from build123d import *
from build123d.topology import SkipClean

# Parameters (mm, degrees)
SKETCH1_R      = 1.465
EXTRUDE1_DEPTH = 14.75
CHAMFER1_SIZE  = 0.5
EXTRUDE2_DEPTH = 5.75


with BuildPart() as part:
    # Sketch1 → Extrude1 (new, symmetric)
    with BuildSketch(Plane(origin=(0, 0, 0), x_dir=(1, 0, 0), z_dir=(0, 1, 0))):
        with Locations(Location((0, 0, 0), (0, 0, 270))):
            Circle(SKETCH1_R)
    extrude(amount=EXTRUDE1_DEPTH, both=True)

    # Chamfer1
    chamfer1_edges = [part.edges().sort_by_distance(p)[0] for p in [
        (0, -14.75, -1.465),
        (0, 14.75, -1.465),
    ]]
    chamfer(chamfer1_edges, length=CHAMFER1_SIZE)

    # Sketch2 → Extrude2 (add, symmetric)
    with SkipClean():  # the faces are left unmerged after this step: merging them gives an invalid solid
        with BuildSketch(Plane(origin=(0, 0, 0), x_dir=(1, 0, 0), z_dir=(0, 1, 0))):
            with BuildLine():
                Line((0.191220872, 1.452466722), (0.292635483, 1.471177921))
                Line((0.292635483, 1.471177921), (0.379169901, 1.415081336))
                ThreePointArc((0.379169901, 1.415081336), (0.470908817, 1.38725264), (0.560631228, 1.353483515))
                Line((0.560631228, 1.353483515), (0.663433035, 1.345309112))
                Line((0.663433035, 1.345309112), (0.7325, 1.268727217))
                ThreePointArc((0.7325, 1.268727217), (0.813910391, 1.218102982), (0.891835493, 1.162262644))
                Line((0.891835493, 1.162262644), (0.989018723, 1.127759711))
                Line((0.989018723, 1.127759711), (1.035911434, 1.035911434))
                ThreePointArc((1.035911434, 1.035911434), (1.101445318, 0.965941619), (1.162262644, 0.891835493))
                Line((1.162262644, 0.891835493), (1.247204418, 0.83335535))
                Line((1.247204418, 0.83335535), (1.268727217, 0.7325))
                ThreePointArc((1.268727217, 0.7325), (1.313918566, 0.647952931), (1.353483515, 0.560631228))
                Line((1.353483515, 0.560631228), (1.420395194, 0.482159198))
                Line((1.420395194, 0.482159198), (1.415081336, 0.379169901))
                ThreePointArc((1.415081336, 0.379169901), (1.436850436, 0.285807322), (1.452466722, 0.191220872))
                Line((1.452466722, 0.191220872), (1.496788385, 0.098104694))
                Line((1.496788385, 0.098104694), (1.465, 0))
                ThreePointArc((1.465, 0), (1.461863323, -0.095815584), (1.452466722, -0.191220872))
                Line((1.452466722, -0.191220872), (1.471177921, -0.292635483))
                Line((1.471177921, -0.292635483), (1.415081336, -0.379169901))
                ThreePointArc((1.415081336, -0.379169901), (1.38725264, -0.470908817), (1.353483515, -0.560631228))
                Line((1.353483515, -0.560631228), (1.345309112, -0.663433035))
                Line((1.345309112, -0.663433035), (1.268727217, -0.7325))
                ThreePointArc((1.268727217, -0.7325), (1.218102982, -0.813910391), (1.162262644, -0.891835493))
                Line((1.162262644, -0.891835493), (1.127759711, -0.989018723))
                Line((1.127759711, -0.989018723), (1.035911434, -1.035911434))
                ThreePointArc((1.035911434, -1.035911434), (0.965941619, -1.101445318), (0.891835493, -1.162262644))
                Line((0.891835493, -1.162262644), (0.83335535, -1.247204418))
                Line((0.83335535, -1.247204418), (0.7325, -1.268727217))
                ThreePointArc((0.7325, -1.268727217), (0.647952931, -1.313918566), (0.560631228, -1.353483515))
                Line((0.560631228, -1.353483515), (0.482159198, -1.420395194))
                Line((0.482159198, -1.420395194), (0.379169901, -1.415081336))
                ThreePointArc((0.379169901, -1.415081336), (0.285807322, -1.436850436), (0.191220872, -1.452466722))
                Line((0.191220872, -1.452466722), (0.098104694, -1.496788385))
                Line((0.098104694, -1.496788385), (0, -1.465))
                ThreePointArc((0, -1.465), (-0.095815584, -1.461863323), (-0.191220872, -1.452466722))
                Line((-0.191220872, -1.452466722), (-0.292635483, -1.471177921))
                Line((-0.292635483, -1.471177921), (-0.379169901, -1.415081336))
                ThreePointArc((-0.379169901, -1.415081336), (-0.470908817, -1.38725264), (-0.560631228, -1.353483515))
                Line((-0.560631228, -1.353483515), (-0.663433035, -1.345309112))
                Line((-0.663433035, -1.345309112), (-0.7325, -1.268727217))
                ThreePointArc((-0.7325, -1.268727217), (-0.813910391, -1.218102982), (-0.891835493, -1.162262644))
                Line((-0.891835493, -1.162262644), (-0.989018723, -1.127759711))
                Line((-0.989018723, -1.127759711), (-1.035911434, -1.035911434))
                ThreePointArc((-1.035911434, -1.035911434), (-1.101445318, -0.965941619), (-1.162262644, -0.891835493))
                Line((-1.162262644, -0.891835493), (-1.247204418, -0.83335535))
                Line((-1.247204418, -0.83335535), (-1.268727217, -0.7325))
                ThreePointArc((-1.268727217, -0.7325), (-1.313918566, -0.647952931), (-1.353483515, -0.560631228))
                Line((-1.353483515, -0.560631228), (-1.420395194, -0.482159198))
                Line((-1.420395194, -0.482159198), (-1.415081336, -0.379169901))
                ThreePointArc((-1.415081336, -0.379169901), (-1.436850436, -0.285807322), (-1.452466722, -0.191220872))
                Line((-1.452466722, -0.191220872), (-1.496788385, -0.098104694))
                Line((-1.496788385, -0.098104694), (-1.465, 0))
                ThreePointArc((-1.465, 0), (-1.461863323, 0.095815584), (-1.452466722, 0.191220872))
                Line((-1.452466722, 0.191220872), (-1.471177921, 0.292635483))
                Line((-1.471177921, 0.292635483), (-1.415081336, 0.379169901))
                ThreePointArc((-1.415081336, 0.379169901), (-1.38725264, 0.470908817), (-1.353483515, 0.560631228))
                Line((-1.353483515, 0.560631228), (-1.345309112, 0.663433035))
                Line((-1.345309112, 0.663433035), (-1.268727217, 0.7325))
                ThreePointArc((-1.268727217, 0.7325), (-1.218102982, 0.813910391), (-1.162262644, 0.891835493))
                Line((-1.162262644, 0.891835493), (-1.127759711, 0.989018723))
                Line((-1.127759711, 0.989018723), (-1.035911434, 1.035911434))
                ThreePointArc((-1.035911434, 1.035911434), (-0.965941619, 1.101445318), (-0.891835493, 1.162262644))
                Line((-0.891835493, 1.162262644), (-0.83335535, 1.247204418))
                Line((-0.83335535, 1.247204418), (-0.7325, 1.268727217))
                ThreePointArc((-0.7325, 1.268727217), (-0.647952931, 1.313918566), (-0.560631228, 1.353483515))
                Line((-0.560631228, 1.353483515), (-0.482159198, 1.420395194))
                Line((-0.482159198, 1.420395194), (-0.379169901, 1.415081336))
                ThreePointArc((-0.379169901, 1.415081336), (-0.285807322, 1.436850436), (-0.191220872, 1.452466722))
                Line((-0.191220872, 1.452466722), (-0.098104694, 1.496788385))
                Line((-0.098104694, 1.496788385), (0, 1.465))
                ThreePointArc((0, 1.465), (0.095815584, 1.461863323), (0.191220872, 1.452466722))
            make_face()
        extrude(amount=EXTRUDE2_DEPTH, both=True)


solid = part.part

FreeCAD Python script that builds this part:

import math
import FreeCAD as App
import Part
import Sketcher

V = App.Vector


def edges_at(feature, points):
    """Names of the edges that pass closest to the given points."""
    edges = feature.Shape.Edges
    near = lambda p: min(range(len(edges)), key=lambda i: edges[i].distToShape(Part.Vertex(*p))[0])
    return sorted({f"Edge{near(p) + 1}" for p in points})

doc = App.newDocument("Part")
body = doc.addObject("PartDesign::Body", "Body")

sketch1 = doc.addObject("Sketcher::SketchObject", "Sketch")
body.addObject(sketch1)
sketch1.AttachmentSupport = (doc.XZ_Plane, [""])
sketch1.MapMode = "FlatFace"
sketch1.addGeometry(Part.Circle(V(0, 0, 0), V(0, 0, 1), 1.5), False)
sketch1.addConstraint(Sketcher.Constraint("Coincident", 0, 3, -1, 1))
sketch1.addConstraint(Sketcher.Constraint("Diameter", 0, 2.93))
pad1 = doc.addObject("PartDesign::Pad", "Pad")
body.addObject(pad1)
pad1.Profile = sketch1
pad1.Length = 29.5
pad1.Midplane = True
doc.recompute()

chamfer = doc.addObject("PartDesign::Chamfer", "Chamfer")
body.addObject(chamfer)
chamfer.Base = (pad1, edges_at(pad1, [(0, -14.75, -1.465), (0, 14.75, -1.465)]))
chamfer.Size = 0.5

sketch2 = doc.addObject("Sketcher::SketchObject", "Sketch001")
body.addObject(sketch2)
sketch2.AttachmentSupport = (doc.XZ_Plane, [""])
sketch2.MapMode = "FlatFace"
sketch2.addGeometry(Part.LineSegment(V(0.29, -1.47, 0), V(0.19, -1.45, 0)), False)
sketch2.addGeometry(Part.ArcOfCircle(Part.Circle(V(0, 0, 0), V(0, 0, 1), 1.46), math.radians(-90), math.radians(-82.5)), False)
sketch2.addGeometry(Part.LineSegment(V(0, -1.47, 0), V(-0.1, -1.5, 0)), False)
sketch2.addGeometry(Part.LineSegment(V(-0.1, -1.5, 0), V(-0.19, -1.45, 0)), False)
sketch2.addGeometry(Part.ArcOfCircle(Part.Circle(V(0, 0, 0), V(0, 0, 1), 1.47), math.radians(-105), math.radians(-97.5)), False)
sketch2.addGeometry(Part.LineSegment(V(-0.38, -1.42, 0), V(-0.48, -1.42, 0)), False)
sketch2.addGeometry(Part.LineSegment(V(-0.48, -1.42, 0), V(-0.56, -1.35, 0)), False)
sketch2.addGeometry(Part.ArcOfCircle(Part.Circle(V(0, 0, 0), V(0, 0, 1), 1.47), math.radians(-120), math.radians(-112.5)), False)
sketch2.addGeometry(Part.LineSegment(V(-0.73, -1.27, 0), V(-0.83, -1.25, 0)), False)
sketch2.addGeometry(Part.LineSegment(V(-0.83, -1.25, 0), V(-0.89, -1.16, 0)), False)
sketch2.addGeometry(Part.ArcOfCircle(Part.Circle(V(0, 0, 0), V(0, 0, 1), 1.46), math.radians(-135), math.radians(-127.5)), False)
sketch2.addGeometry(Part.LineSegment(V(-1.04, -1.04, 0), V(-1.13, -0.99, 0)), False)
sketch2.addGeometry(Part.LineSegment(V(-1.13, -0.99, 0), V(-1.16, -0.89, 0)), False)
sketch2.addGeometry(Part.ArcOfCircle(Part.Circle(V(0, 0, 0), V(0, 0, 1), 1.47), math.radians(-150), math.radians(-142.5)), False)
sketch2.addGeometry(Part.LineSegment(V(-1.27, -0.73, 0), V(-1.35, -0.66, 0)), False)
sketch2.addGeometry(Part.LineSegment(V(-1.35, -0.66, 0), V(-1.35, -0.56, 0)), False)
sketch2.addGeometry(Part.ArcOfCircle(Part.Circle(V(0, 0, 0), V(0, 0, 1), 1.46), math.radians(-165), math.radians(-157.5)), False)
sketch2.addGeometry(Part.LineSegment(V(-1.42, -0.38, 0), V(-1.47, -0.29, 0)), False)
sketch2.addGeometry(Part.LineSegment(V(-1.47, -0.29, 0), V(-1.45, -0.19, 0)), False)
sketch2.addGeometry(Part.ArcOfCircle(Part.Circle(V(0, 0, 0), V(0, 0, 1), 1.46), math.radians(180), math.radians(187.5)), False)
sketch2.addGeometry(Part.LineSegment(V(-1.47, 0, 0), V(-1.5, 0.1, 0)), False)
sketch2.addGeometry(Part.LineSegment(V(-1.5, 0.1, 0), V(-1.45, 0.19, 0)), False)
sketch2.addGeometry(Part.ArcOfCircle(Part.Circle(V(0, 0, 0), V(0, 0, 1), 1.47), math.radians(165), math.radians(172.5)), False)
sketch2.addGeometry(Part.LineSegment(V(-1.42, 0.38, 0), V(-1.42, 0.48, 0)), False)
sketch2.addGeometry(Part.LineSegment(V(-1.42, 0.48, 0), V(-1.35, 0.56, 0)), False)
sketch2.addGeometry(Part.ArcOfCircle(Part.Circle(V(0, 0, 0), V(0, 0, 1), 1.47), math.radians(150), math.radians(157.5)), False)
sketch2.addGeometry(Part.LineSegment(V(-1.27, 0.73, 0), V(-1.25, 0.83, 0)), False)
sketch2.addGeometry(Part.LineSegment(V(-1.25, 0.83, 0), V(-1.16, 0.89, 0)), False)
sketch2.addGeometry(Part.ArcOfCircle(Part.Circle(V(0, 0, 0), V(0, 0, 1), 1.46), math.radians(135), math.radians(142.5)), False)
sketch2.addGeometry(Part.LineSegment(V(-1.04, 1.04, 0), V(-0.99, 1.13, 0)), False)
sketch2.addGeometry(Part.LineSegment(V(-0.99, 1.13, 0), V(-0.89, 1.16, 0)), False)
sketch2.addGeometry(Part.ArcOfCircle(Part.Circle(V(0, 0, 0), V(0, 0, 1), 1.47), math.radians(120), math.radians(127.5)), False)
sketch2.addGeometry(Part.LineSegment(V(-0.73, 1.27, 0), V(-0.66, 1.35, 0)), False)
sketch2.addGeometry(Part.LineSegment(V(-0.66, 1.35, 0), V(-0.56, 1.35, 0)), False)
sketch2.addGeometry(Part.ArcOfCircle(Part.Circle(V(0, 0, 0), V(0, 0, 1), 1.46), math.radians(105), math.radians(112.5)), False)
sketch2.addGeometry(Part.LineSegment(V(-0.38, 1.42, 0), V(-0.29, 1.47, 0)), False)
sketch2.addGeometry(Part.LineSegment(V(-0.29, 1.47, 0), V(-0.19, 1.45, 0)), False)
sketch2.addGeometry(Part.ArcOfCircle(Part.Circle(V(0, 0, 0), V(0, 0, 1), 1.46), math.radians(90), math.radians(97.5)), False)
sketch2.addGeometry(Part.LineSegment(V(0, 1.47, 0), V(0.1, 1.5, 0)), False)
sketch2.addGeometry(Part.LineSegment(V(0.1, 1.5, 0), V(0.19, 1.45, 0)), False)
sketch2.addGeometry(Part.ArcOfCircle(Part.Circle(V(0, 0, 0), V(0, 0, 1), 1.47), math.radians(75), math.radians(82.5)), False)
sketch2.addGeometry(Part.LineSegment(V(0.38, 1.42, 0), V(0.48, 1.42, 0)), False)
sketch2.addGeometry(Part.LineSegment(V(0.48, 1.42, 0), V(0.56, 1.35, 0)), False)
sketch2.addGeometry(Part.ArcOfCircle(Part.Circle(V(0, 0, 0), V(0, 0, 1), 1.47), math.radians(60), math.radians(67.5)), False)
sketch2.addGeometry(Part.LineSegment(V(0.73, 1.27, 0), V(0.83, 1.25, 0)), False)
sketch2.addGeometry(Part.LineSegment(V(0.83, 1.25, 0), V(0.89, 1.16, 0)), False)
sketch2.addGeometry(Part.ArcOfCircle(Part.Circle(V(0, 0, 0), V(0, 0, 1), 1.46), math.radians(45), math.radians(52.5)), False)
sketch2.addGeometry(Part.LineSegment(V(1.04, 1.04, 0), V(1.13, 0.99, 0)), False)
sketch2.addGeometry(Part.LineSegment(V(1.13, 0.99, 0), V(1.16, 0.89, 0)), False)
sketch2.addGeometry(Part.ArcOfCircle(Part.Circle(V(0, 0, 0), V(0, 0, 1), 1.47), math.radians(30), math.radians(37.5)), False)
sketch2.addGeometry(Part.LineSegment(V(1.27, 0.73, 0), V(1.35, 0.66, 0)), False)
sketch2.addGeometry(Part.LineSegment(V(1.35, 0.66, 0), V(1.35, 0.56, 0)), False)
sketch2.addGeometry(Part.ArcOfCircle(Part.Circle(V(0, 0, 0), V(0, 0, 1), 1.46), math.radians(15), math.radians(22.5)), False)
sketch2.addGeometry(Part.LineSegment(V(1.42, 0.38, 0), V(1.47, 0.29, 0)), False)
sketch2.addGeometry(Part.LineSegment(V(1.47, 0.29, 0), V(1.45, 0.19, 0)), False)
sketch2.addGeometry(Part.ArcOfCircle(Part.Circle(V(0, 0, 0), V(0, 0, 1), 1.46), math.radians(0), math.radians(7.5)), False)
sketch2.addGeometry(Part.LineSegment(V(1.47, 0, 0), V(1.5, -0.1, 0)), False)
sketch2.addGeometry(Part.LineSegment(V(1.5, -0.1, 0), V(1.45, -0.19, 0)), False)
sketch2.addGeometry(Part.ArcOfCircle(Part.Circle(V(0, 0, 0), V(0, 0, 1), 1.47), math.radians(-15), math.radians(-7.5)), False)
sketch2.addGeometry(Part.LineSegment(V(1.42, -0.38, 0), V(1.42, -0.48, 0)), False)
sketch2.addGeometry(Part.LineSegment(V(1.42, -0.48, 0), V(1.35, -0.56, 0)), False)
sketch2.addGeometry(Part.ArcOfCircle(Part.Circle(V(0, 0, 0), V(0, 0, 1), 1.47), math.radians(-30), math.radians(-22.5)), False)
sketch2.addGeometry(Part.LineSegment(V(1.27, -0.73, 0), V(1.25, -0.83, 0)), False)
sketch2.addGeometry(Part.LineSegment(V(1.25, -0.83, 0), V(1.16, -0.89, 0)), False)
sketch2.addGeometry(Part.ArcOfCircle(Part.Circle(V(0, 0, 0), V(0, 0, 1), 1.46), math.radians(-45), math.radians(-37.5)), False)
sketch2.addGeometry(Part.LineSegment(V(1.04, -1.04, 0), V(0.99, -1.13, 0)), False)
sketch2.addGeometry(Part.LineSegment(V(0.99, -1.13, 0), V(0.89, -1.16, 0)), False)
sketch2.addGeometry(Part.ArcOfCircle(Part.Circle(V(0, 0, 0), V(0, 0, 1), 1.47), math.radians(-60), math.radians(-52.5)), False)
sketch2.addGeometry(Part.LineSegment(V(0.73, -1.27, 0), V(0.66, -1.35, 0)), False)
sketch2.addGeometry(Part.LineSegment(V(0.66, -1.35, 0), V(0.56, -1.35, 0)), False)
sketch2.addGeometry(Part.ArcOfCircle(Part.Circle(V(0, 0, 0), V(0, 0, 1), 1.46), math.radians(-75), math.radians(-67.5)), False)
sketch2.addGeometry(Part.LineSegment(V(0.38, -1.42, 0), V(0.29, -1.47, 0)), False)
sketch2.addConstraint(Sketcher.Constraint("Coincident", 0, 2, 1, 2))
sketch2.addConstraint(Sketcher.Constraint("Coincident", 1, 1, 2, 1))
sketch2.addConstraint(Sketcher.Constraint("Coincident", 2, 2, 3, 1))
sketch2.addConstraint(Sketcher.Constraint("Coincident", 3, 2, 4, 2))
sketch2.addConstraint(Sketcher.Constraint("Coincident", 4, 1, 5, 1))
sketch2.addConstraint(Sketcher.Constraint("Coincident", 5, 2, 6, 1))
sketch2.addConstraint(Sketcher.Constraint("Coincident", 6, 2, 7, 2))
sketch2.addConstraint(Sketcher.Constraint("Coincident", 7, 1, 8, 1))
sketch2.addConstraint(Sketcher.Constraint("Coincident", 8, 2, 9, 1))
sketch2.addConstraint(Sketcher.Constraint("Coincident", 9, 2, 10, 2))
sketch2.addConstraint(Sketcher.Constraint("Coincident", 10, 1, 11, 1))
sketch2.addConstraint(Sketcher.Constraint("Coincident", 11, 2, 12, 1))
sketch2.addConstraint(Sketcher.Constraint("Coincident", 12, 2, 13, 2))
sketch2.addConstraint(Sketcher.Constraint("Coincident", 13, 1, 14, 1))
sketch2.addConstraint(Sketcher.Constraint("Coincident", 14, 2, 15, 1))
sketch2.addConstraint(Sketcher.Constraint("Coincident", 15, 2, 16, 2))
sketch2.addConstraint(Sketcher.Constraint("Coincident", 16, 1, 17, 1))
sketch2.addConstraint(Sketcher.Constraint("Coincident", 17, 2, 18, 1))
sketch2.addConstraint(Sketcher.Constraint("Coincident", 18, 2, 19, 2))
sketch2.addConstraint(Sketcher.Constraint("Coincident", 19, 1, 20, 1))
sketch2.addConstraint(Sketcher.Constraint("Coincident", 20, 2, 21, 1))
sketch2.addConstraint(Sketcher.Constraint("Coincident", 21, 2, 22, 2))
sketch2.addConstraint(Sketcher.Constraint("Coincident", 22, 1, 23, 1))
sketch2.addConstraint(Sketcher.Constraint("Coincident", 23, 2, 24, 1))
sketch2.addConstraint(Sketcher.Constraint("Coincident", 24, 2, 25, 2))
sketch2.addConstraint(Sketcher.Constraint("Coincident", 25, 1, 26, 1))
sketch2.addConstraint(Sketcher.Constraint("Coincident", 26, 2, 27, 1))
sketch2.addConstraint(Sketcher.Constraint("Coincident", 27, 2, 28, 2))
sketch2.addConstraint(Sketcher.Constraint("Coincident", 28, 1, 29, 1))
sketch2.addConstraint(Sketcher.Constraint("Coincident", 29, 2, 30, 1))
sketch2.addConstraint(Sketcher.Constraint("Coincident", 30, 2, 31, 2))
sketch2.addConstraint(Sketcher.Constraint("Coincident", 31, 1, 32, 1))
sketch2.addConstraint(Sketcher.Constraint("Coincident", 32, 2, 33, 1))
sketch2.addConstraint(Sketcher.Constraint("Coincident", 33, 2, 34, 2))
sketch2.addConstraint(Sketcher.Constraint("Coincident", 34, 1, 35, 1))
sketch2.addConstraint(Sketcher.Constraint("Coincident", 35, 2, 36, 1))
sketch2.addConstraint(Sketcher.Constraint("Coincident", 36, 2, 37, 2))
sketch2.addConstraint(Sketcher.Constraint("Coincident", 37, 1, 38, 1))
sketch2.addConstraint(Sketcher.Constraint("Coincident", 38, 2, 39, 1))
sketch2.addConstraint(Sketcher.Constraint("Coincident", 39, 2, 40, 2))
sketch2.addConstraint(Sketcher.Constraint("Coincident", 40, 1, 41, 1))
sketch2.addConstraint(Sketcher.Constraint("Coincident", 41, 2, 42, 1))
sketch2.addConstraint(Sketcher.Constraint("Coincident", 42, 2, 43, 2))
sketch2.addConstraint(Sketcher.Constraint("Coincident", 43, 1, 44, 1))
sketch2.addConstraint(Sketcher.Constraint("Coincident", 44, 2, 45, 1))
sketch2.addConstraint(Sketcher.Constraint("Coincident", 45, 2, 46, 2))
sketch2.addConstraint(Sketcher.Constraint("Coincident", 46, 1, 47, 1))
sketch2.addConstraint(Sketcher.Constraint("Coincident", 47, 2, 48, 1))
sketch2.addConstraint(Sketcher.Constraint("Coincident", 48, 2, 49, 2))
sketch2.addConstraint(Sketcher.Constraint("Coincident", 49, 1, 50, 1))
sketch2.addConstraint(Sketcher.Constraint("Coincident", 50, 2, 51, 1))
sketch2.addConstraint(Sketcher.Constraint("Coincident", 51, 2, 52, 2))
sketch2.addConstraint(Sketcher.Constraint("Coincident", 52, 1, 53, 1))
sketch2.addConstraint(Sketcher.Constraint("Coincident", 53, 2, 54, 1))
sketch2.addConstraint(Sketcher.Constraint("Coincident", 54, 2, 55, 2))
sketch2.addConstraint(Sketcher.Constraint("Coincident", 55, 1, 56, 1))
sketch2.addConstraint(Sketcher.Constraint("Coincident", 56, 2, 57, 1))
sketch2.addConstraint(Sketcher.Constraint("Coincident", 57, 2, 58, 2))
sketch2.addConstraint(Sketcher.Constraint("Coincident", 58, 1, 59, 1))
sketch2.addConstraint(Sketcher.Constraint("Coincident", 59, 2, 60, 1))
sketch2.addConstraint(Sketcher.Constraint("Coincident", 60, 2, 61, 2))
sketch2.addConstraint(Sketcher.Constraint("Coincident", 61, 1, 62, 1))
sketch2.addConstraint(Sketcher.Constraint("Coincident", 62, 2, 63, 1))
sketch2.addConstraint(Sketcher.Constraint("Coincident", 63, 2, 64, 2))
sketch2.addConstraint(Sketcher.Constraint("Coincident", 64, 1, 65, 1))
sketch2.addConstraint(Sketcher.Constraint("Coincident", 65, 2, 66, 1))
sketch2.addConstraint(Sketcher.Constraint("Coincident", 66, 2, 67, 2))
sketch2.addConstraint(Sketcher.Constraint("Coincident", 67, 1, 68, 1))
sketch2.addConstraint(Sketcher.Constraint("Coincident", 68, 2, 69, 1))
sketch2.addConstraint(Sketcher.Constraint("Coincident", 69, 2, 70, 2))
sketch2.addConstraint(Sketcher.Constraint("Coincident", 70, 1, 71, 1))
sketch2.addConstraint(Sketcher.Constraint("Coincident", 71, 2, 0, 1))
sketch2.addConstraint(Sketcher.Constraint("Coincident", 1, 3, -1, 1))
sketch2.addConstraint(Sketcher.Constraint("Coincident", 4, 3, -1, 1))
sketch2.addConstraint(Sketcher.Constraint("Coincident", 7, 3, -1, 1))
sketch2.addConstraint(Sketcher.Constraint("Coincident", 10, 3, -1, 1))
sketch2.addConstraint(Sketcher.Constraint("Coincident", 13, 3, -1, 1))
sketch2.addConstraint(Sketcher.Constraint("Coincident", 16, 3, -1, 1))
sketch2.addConstraint(Sketcher.Constraint("Coincident", 19, 3, -1, 1))
sketch2.addConstraint(Sketcher.Constraint("Coincident", 22, 3, -1, 1))
sketch2.addConstraint(Sketcher.Constraint("Coincident", 25, 3, -1, 1))
sketch2.addConstraint(Sketcher.Constraint("Coincident", 28, 3, -1, 1))
sketch2.addConstraint(Sketcher.Constraint("Coincident", 31, 3, -1, 1))
sketch2.addConstraint(Sketcher.Constraint("Coincident", 34, 3, -1, 1))
sketch2.addConstraint(Sketcher.Constraint("Coincident", 37, 3, -1, 1))
sketch2.addConstraint(Sketcher.Constraint("Coincident", 40, 3, -1, 1))
sketch2.addConstraint(Sketcher.Constraint("Coincident", 43, 3, -1, 1))
sketch2.addConstraint(Sketcher.Constraint("Coincident", 46, 3, -1, 1))
sketch2.addConstraint(Sketcher.Constraint("Coincident", 49, 3, -1, 1))
sketch2.addConstraint(Sketcher.Constraint("Coincident", 52, 3, -1, 1))
sketch2.addConstraint(Sketcher.Constraint("Coincident", 55, 3, -1, 1))
sketch2.addConstraint(Sketcher.Constraint("Coincident", 58, 3, -1, 1))
sketch2.addConstraint(Sketcher.Constraint("Coincident", 61, 3, -1, 1))
sketch2.addConstraint(Sketcher.Constraint("Coincident", 64, 3, -1, 1))
sketch2.addConstraint(Sketcher.Constraint("Coincident", 67, 3, -1, 1))
sketch2.addConstraint(Sketcher.Constraint("Coincident", 70, 3, -1, 1))
sketch2.addConstraint(Sketcher.Constraint("Equal", 1, 4))
sketch2.addConstraint(Sketcher.Constraint("Equal", 4, 7))
sketch2.addConstraint(Sketcher.Constraint("Equal", 7, 10))
sketch2.addConstraint(Sketcher.Constraint("Equal", 10, 13))
sketch2.addConstraint(Sketcher.Constraint("Equal", 13, 16))
sketch2.addConstraint(Sketcher.Constraint("Equal", 16, 19))
sketch2.addConstraint(Sketcher.Constraint("Equal", 19, 22))
sketch2.addConstraint(Sketcher.Constraint("Equal", 22, 25))
sketch2.addConstraint(Sketcher.Constraint("Equal", 25, 28))
sketch2.addConstraint(Sketcher.Constraint("Equal", 28, 31))
sketch2.addConstraint(Sketcher.Constraint("Equal", 31, 34))
sketch2.addConstraint(Sketcher.Constraint("Equal", 34, 37))
sketch2.addConstraint(Sketcher.Constraint("Equal", 37, 40))
sketch2.addConstraint(Sketcher.Constraint("Equal", 40, 43))
sketch2.addConstraint(Sketcher.Constraint("Equal", 43, 46))
sketch2.addConstraint(Sketcher.Constraint("Equal", 46, 49))
sketch2.addConstraint(Sketcher.Constraint("Equal", 49, 52))
sketch2.addConstraint(Sketcher.Constraint("Equal", 52, 55))
sketch2.addConstraint(Sketcher.Constraint("Equal", 55, 58))
sketch2.addConstraint(Sketcher.Constraint("Equal", 58, 61))
sketch2.addConstraint(Sketcher.Constraint("Equal", 61, 64))
sketch2.addConstraint(Sketcher.Constraint("Equal", 64, 67))
sketch2.addConstraint(Sketcher.Constraint("Equal", 67, 70))
sketch2.addConstraint(Sketcher.Constraint("Symmetric", 2, 2, 38, 2, -1, 1))
sketch2.addConstraint(Sketcher.Constraint("Symmetric", 5, 2, 41, 2, -1, 1))
sketch2.addConstraint(Sketcher.Constraint("Symmetric", 8, 2, 44, 2, -1, 1))
sketch2.addConstraint(Sketcher.Constraint("Symmetric", 11, 2, 47, 2, -1, 1))
sketch2.addConstraint(Sketcher.Constraint("Symmetric", 14, 2, 50, 2, -1, 1))
sketch2.addConstraint(Sketcher.Constraint("Symmetric", 17, 2, 53, 2, -1, 1))
sketch2.addConstraint(Sketcher.Constraint("Symmetric", 20, 2, 56, 2, -1, 1))
sketch2.addConstraint(Sketcher.Constraint("Symmetric", 23, 2, 59, 2, -1, 1))
sketch2.addConstraint(Sketcher.Constraint("Symmetric", 26, 2, 62, 2, -1, 1))
sketch2.addConstraint(Sketcher.Constraint("Symmetric", 29, 2, 65, 2, -1, 1))
sketch2.addConstraint(Sketcher.Constraint("Symmetric", 32, 2, 68, 2, -1, 1))
sketch2.addConstraint(Sketcher.Constraint("Symmetric", 35, 2, 71, 2, -1, 1))
sketch2.addConstraint(Sketcher.Constraint("PointOnObject", 1, 1, -2))
sketch2.addConstraint(Sketcher.Constraint("PointOnObject", 19, 1, -1))
sketch2.addConstraint(Sketcher.Constraint("PointOnObject", 37, 1, -2))
sketch2.addConstraint(Sketcher.Constraint("PointOnObject", 55, 1, -1))
sketch2.addConstraint(Sketcher.Constraint("Perpendicular", 0, 18))
sketch2.addConstraint(Sketcher.Constraint("Perpendicular", 2, 20))
sketch2.addConstraint(Sketcher.Constraint("Perpendicular", 3, 21))
sketch2.addConstraint(Sketcher.Constraint("Perpendicular", 5, 23))
sketch2.addConstraint(Sketcher.Constraint("Perpendicular", 6, 24))
sketch2.addConstraint(Sketcher.Constraint("Perpendicular", 8, 26))
sketch2.addConstraint(Sketcher.Constraint("Perpendicular", 9, 27))
sketch2.addConstraint(Sketcher.Constraint("Perpendicular", 11, 29))
sketch2.addConstraint(Sketcher.Constraint("Perpendicular", 12, 30))
sketch2.addConstraint(Sketcher.Constraint("Perpendicular", 14, 32))
sketch2.addConstraint(Sketcher.Constraint("Perpendicular", 15, 33))
sketch2.addConstraint(Sketcher.Constraint("Perpendicular", 17, 35))
sketch2.addConstraint(Sketcher.Constraint("Perpendicular", 18, 36))
sketch2.addConstraint(Sketcher.Constraint("Perpendicular", 21, 39))
sketch2.addConstraint(Sketcher.Constraint("Perpendicular", 23, 41))
sketch2.addConstraint(Sketcher.Constraint("Perpendicular", 24, 42))
sketch2.addConstraint(Sketcher.Constraint("Perpendicular", 26, 44))
sketch2.addConstraint(Sketcher.Constraint("Perpendicular", 27, 45))
sketch2.addConstraint(Sketcher.Constraint("Perpendicular", 29, 47))
sketch2.addConstraint(Sketcher.Constraint("Perpendicular", 30, 48))
sketch2.addConstraint(Sketcher.Constraint("Perpendicular", 32, 50))
sketch2.addConstraint(Sketcher.Constraint("Perpendicular", 33, 51))
sketch2.addConstraint(Sketcher.Constraint("Perpendicular", 35, 53))
sketch2.addConstraint(Sketcher.Constraint("Perpendicular", 36, 54))
sketch2.addConstraint(Sketcher.Constraint("Perpendicular", 39, 57))
sketch2.addConstraint(Sketcher.Constraint("Perpendicular", 41, 59))
sketch2.addConstraint(Sketcher.Constraint("Perpendicular", 42, 60))
sketch2.addConstraint(Sketcher.Constraint("Perpendicular", 44, 62))
sketch2.addConstraint(Sketcher.Constraint("Perpendicular", 45, 63))
sketch2.addConstraint(Sketcher.Constraint("Perpendicular", 47, 65))
sketch2.addConstraint(Sketcher.Constraint("Perpendicular", 48, 66))
sketch2.addConstraint(Sketcher.Constraint("Perpendicular", 50, 68))
sketch2.addConstraint(Sketcher.Constraint("Perpendicular", 51, 69))
sketch2.addConstraint(Sketcher.Constraint("Perpendicular", 53, 71))
sketch2.addConstraint(Sketcher.Constraint("Horizontal", 0, 2, 3, 2))
sketch2.addConstraint(Sketcher.Constraint("Horizontal", 34, 1, 40, 1))
sketch2.addConstraint(Sketcher.Constraint("Horizontal", 33, 2, 42, 2))
sketch2.addConstraint(Sketcher.Constraint("Horizontal", 31, 1, 43, 1))
sketch2.addConstraint(Sketcher.Constraint("Horizontal", 30, 2, 45, 2))
sketch2.addConstraint(Sketcher.Constraint("Horizontal", 28, 1, 46, 1))
sketch2.addConstraint(Sketcher.Constraint("Horizontal", 27, 2, 48, 2))
sketch2.addConstraint(Sketcher.Constraint("Horizontal", 25, 1, 49, 1))
sketch2.addConstraint(Sketcher.Constraint("Horizontal", 24, 2, 51, 2))
sketch2.addConstraint(Sketcher.Constraint("Horizontal", 22, 1, 52, 1))
sketch2.addConstraint(Sketcher.Constraint("Horizontal", 21, 2, 54, 2))
sketch2.addConstraint(Sketcher.Constraint("Equal", 0, 2))
sketch2.addConstraint(Sketcher.Constraint("Equal", 2, 3))
sketch2.addConstraint(Sketcher.Constraint("Equal", 3, 5))
sketch2.addConstraint(Sketcher.Constraint("Equal", 5, 6))
sketch2.addConstraint(Sketcher.Constraint("Equal", 6, 8))
sketch2.addConstraint(Sketcher.Constraint("Equal", 8, 9))
sketch2.addConstraint(Sketcher.Constraint("Equal", 9, 11))
sketch2.addConstraint(Sketcher.Constraint("Equal", 11, 12))
sketch2.addConstraint(Sketcher.Constraint("Equal", 12, 14))
sketch2.addConstraint(Sketcher.Constraint("Equal", 14, 15))
sketch2.addConstraint(Sketcher.Constraint("Equal", 15, 17))
sketch2.addConstraint(Sketcher.Constraint("Equal", 17, 18))
sketch2.addConstraint(Sketcher.Constraint("Equal", 18, 20))
sketch2.addConstraint(Sketcher.Constraint("Equal", 21, 23))
sketch2.addConstraint(Sketcher.Constraint("Equal", 24, 26))
sketch2.addConstraint(Sketcher.Constraint("Equal", 26, 27))
sketch2.addConstraint(Sketcher.Constraint("Equal", 27, 29))
sketch2.addConstraint(Sketcher.Constraint("Radius", 1, 1.465))
sketch2.addConstraint(Sketcher.Constraint("DistanceX", 7, 1, -1, 1, 0.7325))
sketch2.addConstraint(Sketcher.Constraint("DistanceX", -1, 1, 0, 2, 0.191221))
sketch2.addConstraint(Sketcher.Constraint("DistanceY", 2, 2, -1, 1, 1.496788))
sketch2.addConstraint(Sketcher.Constraint("DistanceX", 4, 1, -1, 1, 0.37917))
sketch2.addConstraint(Sketcher.Constraint("DistanceX", 5, 2, -1, 1, 0.482159))
sketch2.addConstraint(Sketcher.Constraint("DistanceX", 11, 2, -1, 1, 1.12776))
pad2 = doc.addObject("PartDesign::Pad", "Pad001")
body.addObject(pad2)
pad2.Profile = sketch2
pad2.Length = 11.5
pad2.Midplane = True

doc.recompute()
